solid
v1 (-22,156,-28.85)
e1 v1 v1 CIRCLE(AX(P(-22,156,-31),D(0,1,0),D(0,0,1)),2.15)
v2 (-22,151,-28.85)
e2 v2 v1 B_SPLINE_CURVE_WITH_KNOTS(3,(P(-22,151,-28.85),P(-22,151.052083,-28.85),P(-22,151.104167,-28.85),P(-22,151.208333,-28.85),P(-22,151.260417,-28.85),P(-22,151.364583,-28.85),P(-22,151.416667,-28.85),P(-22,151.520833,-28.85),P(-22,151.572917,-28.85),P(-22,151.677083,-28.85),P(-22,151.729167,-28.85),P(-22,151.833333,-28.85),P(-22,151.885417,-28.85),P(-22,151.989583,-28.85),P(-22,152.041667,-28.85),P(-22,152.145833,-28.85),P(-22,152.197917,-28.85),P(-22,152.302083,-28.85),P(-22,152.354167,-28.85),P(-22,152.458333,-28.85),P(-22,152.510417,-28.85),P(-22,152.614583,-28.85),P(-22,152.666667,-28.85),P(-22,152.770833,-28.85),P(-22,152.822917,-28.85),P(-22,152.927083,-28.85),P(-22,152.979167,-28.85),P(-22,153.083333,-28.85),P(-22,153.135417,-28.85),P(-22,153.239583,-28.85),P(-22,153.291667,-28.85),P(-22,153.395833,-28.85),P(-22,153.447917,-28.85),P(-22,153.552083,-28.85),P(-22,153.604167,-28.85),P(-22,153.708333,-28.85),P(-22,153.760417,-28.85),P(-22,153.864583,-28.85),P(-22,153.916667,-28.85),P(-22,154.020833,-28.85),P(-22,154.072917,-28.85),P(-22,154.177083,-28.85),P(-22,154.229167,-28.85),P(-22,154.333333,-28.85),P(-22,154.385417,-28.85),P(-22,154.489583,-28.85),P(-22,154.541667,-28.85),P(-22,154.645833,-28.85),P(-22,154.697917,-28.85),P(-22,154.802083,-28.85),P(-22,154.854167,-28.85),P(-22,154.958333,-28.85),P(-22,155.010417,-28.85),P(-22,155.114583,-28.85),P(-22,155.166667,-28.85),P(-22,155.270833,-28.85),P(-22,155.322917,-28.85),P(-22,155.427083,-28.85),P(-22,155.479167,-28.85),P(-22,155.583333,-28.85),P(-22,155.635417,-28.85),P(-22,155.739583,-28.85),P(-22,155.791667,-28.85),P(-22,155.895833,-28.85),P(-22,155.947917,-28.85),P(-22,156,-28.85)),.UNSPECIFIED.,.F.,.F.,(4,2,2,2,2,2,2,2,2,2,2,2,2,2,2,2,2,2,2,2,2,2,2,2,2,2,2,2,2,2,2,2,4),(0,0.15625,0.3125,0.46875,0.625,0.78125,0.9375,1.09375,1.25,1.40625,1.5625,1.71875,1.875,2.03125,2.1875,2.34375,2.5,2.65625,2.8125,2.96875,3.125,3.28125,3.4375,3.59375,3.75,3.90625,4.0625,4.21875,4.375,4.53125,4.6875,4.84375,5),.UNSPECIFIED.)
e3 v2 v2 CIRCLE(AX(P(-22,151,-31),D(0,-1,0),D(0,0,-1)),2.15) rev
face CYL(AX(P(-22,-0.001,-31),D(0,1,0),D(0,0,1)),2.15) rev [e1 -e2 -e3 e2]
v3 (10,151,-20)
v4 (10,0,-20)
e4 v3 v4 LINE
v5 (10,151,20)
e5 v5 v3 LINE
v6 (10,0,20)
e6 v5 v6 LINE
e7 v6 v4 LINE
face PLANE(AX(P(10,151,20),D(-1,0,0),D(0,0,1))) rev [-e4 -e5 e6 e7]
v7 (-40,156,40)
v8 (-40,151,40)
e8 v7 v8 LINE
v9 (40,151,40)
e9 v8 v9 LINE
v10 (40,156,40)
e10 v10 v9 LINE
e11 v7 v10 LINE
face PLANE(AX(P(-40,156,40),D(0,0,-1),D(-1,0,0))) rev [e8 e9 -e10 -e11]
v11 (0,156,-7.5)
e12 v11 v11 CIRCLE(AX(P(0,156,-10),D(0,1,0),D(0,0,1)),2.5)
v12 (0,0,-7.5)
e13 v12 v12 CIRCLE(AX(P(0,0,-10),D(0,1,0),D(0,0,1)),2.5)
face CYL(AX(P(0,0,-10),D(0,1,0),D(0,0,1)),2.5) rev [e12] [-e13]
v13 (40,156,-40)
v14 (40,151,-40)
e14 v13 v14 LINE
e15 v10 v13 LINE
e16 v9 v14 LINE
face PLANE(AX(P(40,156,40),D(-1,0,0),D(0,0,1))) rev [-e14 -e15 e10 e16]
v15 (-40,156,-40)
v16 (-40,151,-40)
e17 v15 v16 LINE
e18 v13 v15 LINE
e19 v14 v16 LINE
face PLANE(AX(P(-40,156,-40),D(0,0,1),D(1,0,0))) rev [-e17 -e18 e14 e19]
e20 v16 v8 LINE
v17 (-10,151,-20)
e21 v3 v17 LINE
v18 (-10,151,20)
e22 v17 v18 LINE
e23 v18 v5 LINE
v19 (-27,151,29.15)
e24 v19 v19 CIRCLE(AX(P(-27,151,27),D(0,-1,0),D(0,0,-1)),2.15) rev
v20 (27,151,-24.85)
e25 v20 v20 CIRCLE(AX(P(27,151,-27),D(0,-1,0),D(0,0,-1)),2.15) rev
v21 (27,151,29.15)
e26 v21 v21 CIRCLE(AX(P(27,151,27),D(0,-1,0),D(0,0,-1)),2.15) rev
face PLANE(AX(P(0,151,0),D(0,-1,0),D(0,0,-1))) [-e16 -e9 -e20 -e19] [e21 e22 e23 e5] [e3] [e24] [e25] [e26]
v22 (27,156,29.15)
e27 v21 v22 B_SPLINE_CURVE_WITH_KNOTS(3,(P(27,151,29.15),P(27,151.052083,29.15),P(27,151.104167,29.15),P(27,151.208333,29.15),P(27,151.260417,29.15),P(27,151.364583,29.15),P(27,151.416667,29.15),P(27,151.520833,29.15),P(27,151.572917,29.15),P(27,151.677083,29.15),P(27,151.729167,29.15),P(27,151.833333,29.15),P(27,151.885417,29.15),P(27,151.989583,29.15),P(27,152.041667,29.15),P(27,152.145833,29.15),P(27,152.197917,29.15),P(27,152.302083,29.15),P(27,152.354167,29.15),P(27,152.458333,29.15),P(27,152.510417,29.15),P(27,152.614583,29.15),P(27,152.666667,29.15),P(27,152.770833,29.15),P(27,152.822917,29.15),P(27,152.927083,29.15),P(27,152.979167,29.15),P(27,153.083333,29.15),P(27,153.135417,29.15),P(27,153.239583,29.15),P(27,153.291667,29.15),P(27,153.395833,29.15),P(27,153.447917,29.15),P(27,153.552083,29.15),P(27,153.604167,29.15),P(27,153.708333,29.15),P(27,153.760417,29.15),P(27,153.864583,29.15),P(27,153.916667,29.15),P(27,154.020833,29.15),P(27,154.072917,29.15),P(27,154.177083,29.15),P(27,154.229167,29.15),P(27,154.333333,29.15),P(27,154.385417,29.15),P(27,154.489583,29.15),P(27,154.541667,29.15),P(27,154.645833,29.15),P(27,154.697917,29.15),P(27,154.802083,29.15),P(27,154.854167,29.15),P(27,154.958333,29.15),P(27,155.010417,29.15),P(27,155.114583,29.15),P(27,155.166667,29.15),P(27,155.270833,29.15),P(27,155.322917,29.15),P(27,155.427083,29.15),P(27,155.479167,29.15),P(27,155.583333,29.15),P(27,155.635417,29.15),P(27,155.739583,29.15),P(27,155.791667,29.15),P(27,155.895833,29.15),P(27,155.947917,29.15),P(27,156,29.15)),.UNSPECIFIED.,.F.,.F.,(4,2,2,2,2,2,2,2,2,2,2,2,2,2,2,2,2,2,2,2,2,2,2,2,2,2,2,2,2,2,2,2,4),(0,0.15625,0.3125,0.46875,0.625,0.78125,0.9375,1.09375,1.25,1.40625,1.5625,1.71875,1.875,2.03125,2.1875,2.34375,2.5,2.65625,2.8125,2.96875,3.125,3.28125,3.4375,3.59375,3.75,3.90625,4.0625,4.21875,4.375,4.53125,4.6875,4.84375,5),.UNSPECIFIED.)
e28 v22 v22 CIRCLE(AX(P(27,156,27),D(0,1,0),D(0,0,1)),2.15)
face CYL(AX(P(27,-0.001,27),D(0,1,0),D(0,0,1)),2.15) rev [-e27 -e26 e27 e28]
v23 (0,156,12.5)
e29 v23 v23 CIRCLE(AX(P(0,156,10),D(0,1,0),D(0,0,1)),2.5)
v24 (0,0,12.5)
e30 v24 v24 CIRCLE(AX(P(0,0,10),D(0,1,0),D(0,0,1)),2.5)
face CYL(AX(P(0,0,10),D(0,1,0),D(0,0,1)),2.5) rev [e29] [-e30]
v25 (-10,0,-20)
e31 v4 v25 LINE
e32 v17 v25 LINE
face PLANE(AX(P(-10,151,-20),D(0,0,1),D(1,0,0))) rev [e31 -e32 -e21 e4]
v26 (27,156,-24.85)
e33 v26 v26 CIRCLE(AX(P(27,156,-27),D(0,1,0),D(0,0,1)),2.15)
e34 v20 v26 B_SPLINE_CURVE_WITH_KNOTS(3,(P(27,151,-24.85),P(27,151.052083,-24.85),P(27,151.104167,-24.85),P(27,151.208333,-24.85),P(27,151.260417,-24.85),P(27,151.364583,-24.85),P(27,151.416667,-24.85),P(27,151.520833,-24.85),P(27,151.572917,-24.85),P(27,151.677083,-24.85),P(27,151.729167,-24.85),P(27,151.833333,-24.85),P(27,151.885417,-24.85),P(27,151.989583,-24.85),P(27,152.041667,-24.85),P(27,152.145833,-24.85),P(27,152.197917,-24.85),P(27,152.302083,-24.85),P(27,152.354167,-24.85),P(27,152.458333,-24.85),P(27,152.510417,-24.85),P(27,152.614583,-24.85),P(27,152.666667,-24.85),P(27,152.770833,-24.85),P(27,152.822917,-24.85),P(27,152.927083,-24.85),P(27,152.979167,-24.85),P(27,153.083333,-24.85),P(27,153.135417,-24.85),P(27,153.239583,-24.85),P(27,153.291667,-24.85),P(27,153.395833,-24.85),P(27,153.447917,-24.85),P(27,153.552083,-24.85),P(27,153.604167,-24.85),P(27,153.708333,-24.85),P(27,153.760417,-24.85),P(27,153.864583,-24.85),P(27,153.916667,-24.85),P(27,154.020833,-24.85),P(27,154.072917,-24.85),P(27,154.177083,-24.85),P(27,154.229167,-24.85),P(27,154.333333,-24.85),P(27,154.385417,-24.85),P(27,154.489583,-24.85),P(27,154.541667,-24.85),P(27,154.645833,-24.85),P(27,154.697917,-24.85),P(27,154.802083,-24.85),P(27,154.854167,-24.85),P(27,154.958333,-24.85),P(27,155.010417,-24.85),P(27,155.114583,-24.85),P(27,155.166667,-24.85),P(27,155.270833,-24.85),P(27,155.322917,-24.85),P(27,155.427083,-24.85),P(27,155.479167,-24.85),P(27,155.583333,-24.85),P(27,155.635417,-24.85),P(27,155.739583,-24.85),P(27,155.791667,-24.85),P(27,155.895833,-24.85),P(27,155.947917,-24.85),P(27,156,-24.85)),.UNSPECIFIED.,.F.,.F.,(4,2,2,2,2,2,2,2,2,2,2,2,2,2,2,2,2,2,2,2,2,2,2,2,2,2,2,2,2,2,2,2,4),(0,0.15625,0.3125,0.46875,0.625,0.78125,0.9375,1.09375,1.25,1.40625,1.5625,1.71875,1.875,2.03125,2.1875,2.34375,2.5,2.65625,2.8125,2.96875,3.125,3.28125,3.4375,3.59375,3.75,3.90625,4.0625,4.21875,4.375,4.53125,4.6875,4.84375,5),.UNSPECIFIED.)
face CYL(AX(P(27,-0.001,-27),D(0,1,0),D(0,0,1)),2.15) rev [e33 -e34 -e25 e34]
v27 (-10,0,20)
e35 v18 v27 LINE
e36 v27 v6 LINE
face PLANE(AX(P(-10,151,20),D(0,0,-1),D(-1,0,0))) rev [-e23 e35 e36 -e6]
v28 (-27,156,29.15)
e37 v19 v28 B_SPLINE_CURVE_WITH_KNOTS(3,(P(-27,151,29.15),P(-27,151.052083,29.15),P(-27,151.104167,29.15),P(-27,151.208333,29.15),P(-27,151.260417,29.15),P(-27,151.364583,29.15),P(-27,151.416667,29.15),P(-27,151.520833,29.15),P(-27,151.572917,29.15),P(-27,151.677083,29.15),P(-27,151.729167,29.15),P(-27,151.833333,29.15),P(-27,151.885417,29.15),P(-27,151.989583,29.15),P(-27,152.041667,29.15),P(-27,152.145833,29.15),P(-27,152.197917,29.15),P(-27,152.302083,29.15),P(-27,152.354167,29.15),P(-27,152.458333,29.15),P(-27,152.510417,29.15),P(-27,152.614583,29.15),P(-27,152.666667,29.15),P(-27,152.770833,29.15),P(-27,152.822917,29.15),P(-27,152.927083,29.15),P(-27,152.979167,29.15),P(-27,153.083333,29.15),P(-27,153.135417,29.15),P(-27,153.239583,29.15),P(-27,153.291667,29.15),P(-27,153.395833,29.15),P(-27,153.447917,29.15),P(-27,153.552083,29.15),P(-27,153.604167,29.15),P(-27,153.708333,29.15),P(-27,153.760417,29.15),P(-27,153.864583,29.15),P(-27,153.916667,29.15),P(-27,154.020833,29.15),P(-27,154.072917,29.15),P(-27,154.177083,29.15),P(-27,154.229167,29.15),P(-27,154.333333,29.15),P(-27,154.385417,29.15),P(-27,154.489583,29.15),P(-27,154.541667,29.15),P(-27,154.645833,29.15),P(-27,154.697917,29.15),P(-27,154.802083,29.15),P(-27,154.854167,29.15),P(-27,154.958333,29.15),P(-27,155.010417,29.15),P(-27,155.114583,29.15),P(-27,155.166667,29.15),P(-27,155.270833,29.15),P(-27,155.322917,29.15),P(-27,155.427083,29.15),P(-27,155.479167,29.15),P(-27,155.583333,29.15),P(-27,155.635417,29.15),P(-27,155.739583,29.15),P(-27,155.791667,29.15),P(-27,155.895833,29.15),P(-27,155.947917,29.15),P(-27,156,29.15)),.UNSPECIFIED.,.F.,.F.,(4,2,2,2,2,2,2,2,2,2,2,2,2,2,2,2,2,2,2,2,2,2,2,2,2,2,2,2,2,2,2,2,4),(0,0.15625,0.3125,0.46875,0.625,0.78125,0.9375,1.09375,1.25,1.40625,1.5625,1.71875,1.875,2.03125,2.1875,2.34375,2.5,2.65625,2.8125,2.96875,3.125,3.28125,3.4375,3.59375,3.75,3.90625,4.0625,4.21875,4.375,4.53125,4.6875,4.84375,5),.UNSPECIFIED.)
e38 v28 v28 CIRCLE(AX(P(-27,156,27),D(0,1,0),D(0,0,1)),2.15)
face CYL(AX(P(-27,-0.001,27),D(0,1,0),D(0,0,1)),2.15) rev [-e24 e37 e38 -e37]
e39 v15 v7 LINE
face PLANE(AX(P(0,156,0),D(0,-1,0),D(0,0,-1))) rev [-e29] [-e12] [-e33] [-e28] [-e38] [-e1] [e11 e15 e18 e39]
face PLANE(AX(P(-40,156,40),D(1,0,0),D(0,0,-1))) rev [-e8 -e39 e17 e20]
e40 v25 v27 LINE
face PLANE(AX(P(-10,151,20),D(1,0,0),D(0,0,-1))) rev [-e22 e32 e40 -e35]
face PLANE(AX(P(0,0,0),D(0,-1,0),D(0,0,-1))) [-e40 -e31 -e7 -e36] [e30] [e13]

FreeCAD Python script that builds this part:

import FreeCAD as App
import Part
import Sketcher
from FreeCAD import Vector
Q = App.Units.Quantity


def add_polygon(sketch, points):
    """Adds a closed chain of lines whose ends are joined by coincident constraints."""
    first, n = sketch.GeometryCount, len(points)
    for a, b in zip(points, points[1:] + points[:1]):
        sketch.addGeometry(Part.LineSegment(App.Vector(*a, 0), App.Vector(*b, 0)), False)
    for i in range(n):
        sketch.addConstraint(Sketcher.Constraint("Coincident", first + i, 2, first + (i + 1) % n, 1))

doc = App.newDocument("Part")
body = doc.addObject("PartDesign::Body", "Body")

# Sketch on XZ plane
sketch1 = body.newObject("Sketcher::SketchObject", "Sketch")
sketch1.AttachmentSupport = (doc.getObject("XZ_Plane"), [""])
sketch1.MapMode = "FlatFace"
add_polygon(sketch1, [(-10, -20), (-10, 20), (10, 20), (10, -20)])  # lines 0-3
sketch1.addConstraint(Sketcher.Constraint("Vertical", 0))
sketch1.addConstraint(Sketcher.Constraint("Horizontal", 1))
sketch1.addConstraint(Sketcher.Constraint("Vertical", 2))
sketch1.addConstraint(Sketcher.Constraint("Horizontal", 3))
sketch1.addConstraint(Sketcher.Constraint("Symmetric", 0, 2, 2, 2, -1, 1))
sketch1.addConstraint(Sketcher.Constraint("DistanceX", 1, 1, 1, 2, Q("20 mm")))
sketch1.addConstraint(Sketcher.Constraint("DistanceY", 0, 1, 0, 2, Q("40 mm")))
pad1 = body.newObject("PartDesign::Pad", "Pad")
pad1.Profile = sketch1
pad1.Length = 151
pad1.Reversed = True

# Sketch on XZ plane
sketch2 = body.newObject("Sketcher::SketchObject", "Sketch001")
sketch2.AttachmentSupport = (doc.getObject("XZ_Plane"), [""])
sketch2.MapMode = "FlatFace"
sketch2.AttachmentOffset = App.Placement(Vector(0, 0, -151), App.Rotation())
add_polygon(sketch2, [(-40, -40), (-40, 40), (40, 40), (40, -40)])  # lines 0-3
sketch2.addConstraint(Sketcher.Constraint("Vertical", 0))
sketch2.addConstraint(Sketcher.Constraint("Horizontal", 1))
sketch2.addConstraint(Sketcher.Constraint("Vertical", 2))
sketch2.addConstraint(Sketcher.Constraint("Horizontal", 3))
sketch2.addConstraint(Sketcher.Constraint("Symmetric", 0, 2, 2, 2, -1, 1))
sketch2.addConstraint(Sketcher.Constraint("Equal", 3, 0))
sketch2.addConstraint(Sketcher.Constraint("DistanceX", 1, 1, 1, 2, Q("80 mm")))
pad2 = body.newObject("PartDesign::Pad", "Pad001")
pad2.Profile = sketch2
pad2.Length = 5
pad2.Reversed = True

# Sketch on XZ plane
sketch3 = body.newObject("Sketcher::SketchObject", "Sketch002")
sketch3.AttachmentSupport = (doc.getObject("XZ_Plane"), [""])
sketch3.MapMode = "FlatFace"
sketch3.AttachmentOffset = App.Placement(Vector(0, 0, -156), App.Rotation())
sketch3.addGeometry(Part.Circle(Vector(0, -10, 0), Vector(0, 0, 1), 2.5), False)
sketch3.addGeometry(Part.Circle(Vector(0, 10, 0), Vector(0, 0, 1), 2.5), False)
sketch3.addConstraint(Sketcher.Constraint("Equal", 0, 1))
sketch3.addConstraint(Sketcher.Constraint("Symmetric", 0, 3, 1, 3, -1, 1))
sketch3.addConstraint(Sketcher.Constraint("PointOnObject", 0, 3, -2))
sketch3.addConstraint(Sketcher.Constraint("Diameter", 0, Q("5 mm")))
sketch3.addConstraint(Sketcher.Constraint("DistanceY", 0, 3, -1, 1, Q("10 mm")))
pocket1 = body.newObject("PartDesign::Pocket", "Pocket")
pocket1.Profile = sketch3
pocket1.Type = "ThroughAll"
pocket1.Reversed = True

# Sketch on XZ plane
sketch4 = body.newObject("Sketcher::SketchObject", "Sketch003")
sketch4.AttachmentSupport = (doc.getObject("XZ_Plane"), [""])
sketch4.MapMode = "FlatFace"
sketch4.AttachmentOffset = App.Placement(Vector(0, 0, -156), App.Rotation())
sketch4.addGeometry(Part.Circle(Vector(-22, -31, 0), Vector(0, 0, 1), 2.1), False)
sketch4.addConstraint(Sketcher.Constraint("Diameter", 0, Q("4.3 mm")))
sketch4.addConstraint(Sketcher.Constraint("DistanceX", 0, 3, -1, 1, Q("22 mm")))
sketch4.addConstraint(Sketcher.Constraint("DistanceY", 0, 3, -1, 1, Q("31 mm")))
pocket2 = body.newObject("PartDesign::Pocket", "Pocket001")
pocket2.Profile = sketch4
pocket2.Type = "UpToFirst"
pocket2.Reversed = True

# Sketch on XZ plane
sketch5 = body.newObject("Sketcher::SketchObject", "Sketch004")
sketch5.AttachmentSupport = (doc.getObject("XZ_Plane"), [""])
sketch5.MapMode = "FlatFace"
sketch5.AttachmentOffset = App.Placement(Vector(0, 0, -156), App.Rotation())
sketch5.addGeometry(Part.Circle(Vector(27, -27, 0), Vector(0, 0, 1), 2.1), False)
sketch5.addConstraint(Sketcher.Constraint("Diameter", 0, Q("4.3 mm")))
sketch5.addConstraint(Sketcher.Constraint("DistanceX", -1, 1, 0, 3, Q("27 mm")))
sketch5.addConstraint(Sketcher.Constraint("DistanceY", 0, 3, -1, 1, Q("27 mm")))
pocket3 = body.newObject("PartDesign::Pocket", "Pocket002")
pocket3.Profile = sketch5
pocket3.Type = "UpToFirst"
pocket3.Reversed = True

# Sketch on XZ plane
sketch6 = body.newObject("Sketcher::SketchObject", "Sketch005")
sketch6.AttachmentSupport = (doc.getObject("XZ_Plane"), [""])
sketch6.MapMode = "FlatFace"
sketch6.AttachmentOffset = App.Placement(Vector(0, 0, -156), App.Rotation())
sketch6.addGeometry(Part.Circle(Vector(-27, 27, 0), Vector(0, 0, 1), 2.1), False)
sketch6.addConstraint(Sketcher.Constraint("Diameter", 0, Q("4.3 mm")))
sketch6.addConstraint(Sketcher.Constraint("DistanceX", 0, 3, -1, 1, Q("27 mm")))
sketch6.addConstraint(Sketcher.Constraint("DistanceY", -1, 1, 0, 3, Q("27 mm")))
pocket4 = body.newObject("PartDesign::Pocket", "Pocket003")
pocket4.Profile = sketch6
pocket4.Type = "UpToFirst"
pocket4.Reversed = True

# Sketch on XZ plane
sketch7 = body.newObject("Sketcher::SketchObject", "Sketch006")
sketch7.AttachmentSupport = (doc.getObject("XZ_Plane"), [""])
sketch7.MapMode = "FlatFace"
sketch7.AttachmentOffset = App.Placement(Vector(0, 0, -156), App.Rotation())
sketch7.addGeometry(Part.Circle(Vector(27, 27, 0), Vector(0, 0, 1), 2.1), False)
sketch7.addConstraint(Sketcher.Constraint("Diameter", 0, Q("4.3 mm")))
sketch7.addConstraint(Sketcher.Constraint("DistanceX", -1, 1, 0, 3, Q("27 mm")))
sketch7.addConstraint(Sketcher.Constraint("DistanceY", -1, 1, 0, 3, Q("27 mm")))
pocket5 = body.newObject("PartDesign::Pocket", "Pocket004")
pocket5.Profile = sketch7
pocket5.Type = "UpToFirst"
pocket5.Reversed = True

doc.recompute()
